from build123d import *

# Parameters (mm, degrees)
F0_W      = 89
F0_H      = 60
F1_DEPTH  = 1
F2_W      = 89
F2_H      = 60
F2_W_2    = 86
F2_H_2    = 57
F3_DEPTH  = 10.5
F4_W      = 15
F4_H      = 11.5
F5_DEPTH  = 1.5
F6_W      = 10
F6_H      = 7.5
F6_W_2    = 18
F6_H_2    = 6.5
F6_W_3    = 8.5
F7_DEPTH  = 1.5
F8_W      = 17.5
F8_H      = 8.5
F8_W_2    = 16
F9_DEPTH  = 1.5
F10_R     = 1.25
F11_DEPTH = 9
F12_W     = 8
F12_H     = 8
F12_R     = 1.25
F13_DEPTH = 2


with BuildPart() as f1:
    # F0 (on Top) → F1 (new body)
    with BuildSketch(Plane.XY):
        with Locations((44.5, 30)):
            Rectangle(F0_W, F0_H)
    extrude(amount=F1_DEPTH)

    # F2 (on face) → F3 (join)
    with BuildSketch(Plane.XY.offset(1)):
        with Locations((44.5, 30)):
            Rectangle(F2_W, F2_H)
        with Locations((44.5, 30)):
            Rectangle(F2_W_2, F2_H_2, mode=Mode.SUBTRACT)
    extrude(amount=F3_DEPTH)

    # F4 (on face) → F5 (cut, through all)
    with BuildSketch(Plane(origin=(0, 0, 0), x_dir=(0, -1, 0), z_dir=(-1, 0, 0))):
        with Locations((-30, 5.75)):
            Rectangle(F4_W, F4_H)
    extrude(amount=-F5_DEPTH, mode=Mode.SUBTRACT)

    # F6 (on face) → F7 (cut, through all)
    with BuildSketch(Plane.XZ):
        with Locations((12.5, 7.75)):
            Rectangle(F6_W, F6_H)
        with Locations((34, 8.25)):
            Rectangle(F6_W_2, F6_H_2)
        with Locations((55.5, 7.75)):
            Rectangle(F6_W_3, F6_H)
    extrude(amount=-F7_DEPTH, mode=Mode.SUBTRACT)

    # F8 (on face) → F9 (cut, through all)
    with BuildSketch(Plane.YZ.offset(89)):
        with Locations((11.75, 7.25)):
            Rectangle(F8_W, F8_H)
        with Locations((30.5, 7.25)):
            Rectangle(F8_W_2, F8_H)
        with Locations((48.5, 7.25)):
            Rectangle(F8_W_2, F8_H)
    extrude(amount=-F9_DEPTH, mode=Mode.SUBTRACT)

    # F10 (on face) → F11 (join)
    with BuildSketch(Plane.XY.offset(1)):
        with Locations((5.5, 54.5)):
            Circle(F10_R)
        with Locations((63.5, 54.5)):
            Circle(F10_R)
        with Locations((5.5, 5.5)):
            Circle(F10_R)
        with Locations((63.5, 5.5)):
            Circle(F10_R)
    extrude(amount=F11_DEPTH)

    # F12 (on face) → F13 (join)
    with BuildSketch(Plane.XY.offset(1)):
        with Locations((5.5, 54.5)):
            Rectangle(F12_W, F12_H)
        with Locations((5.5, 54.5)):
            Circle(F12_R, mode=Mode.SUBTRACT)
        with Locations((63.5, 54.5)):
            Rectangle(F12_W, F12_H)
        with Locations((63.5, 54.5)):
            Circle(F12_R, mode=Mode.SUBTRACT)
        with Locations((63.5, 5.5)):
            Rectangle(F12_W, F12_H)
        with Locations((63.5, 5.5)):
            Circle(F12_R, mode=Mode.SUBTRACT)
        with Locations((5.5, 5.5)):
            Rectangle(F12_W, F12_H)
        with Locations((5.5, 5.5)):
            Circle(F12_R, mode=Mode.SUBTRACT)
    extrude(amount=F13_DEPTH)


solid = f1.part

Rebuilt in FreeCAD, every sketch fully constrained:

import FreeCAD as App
import Part
import Sketcher
Q = App.Units.Quantity

doc = App.newDocument("Part")
body = doc.addObject("PartDesign::Body", "Body")

# Sketch on XY plane
sketch1 = doc.addObject("Sketcher::SketchObject", "Sketch")
body.addObject(sketch1)
sketch1.AttachmentSupport = (doc.XY_Plane, [""])
sketch1.MapMode = "FlatFace"
sketch1.addGeometry([
    Part.LineSegment(App.Vector(0, 60, 0), App.Vector(0, 0, 0)),
    Part.LineSegment(App.Vector(0, 0, 0), App.Vector(89, 0, 0)),
    Part.LineSegment(App.Vector(89, 0, 0), App.Vector(89, 60, 0)),
    Part.LineSegment(App.Vector(89, 60, 0), App.Vector(0, 60, 0)),
], False)
sketch1.addConstraint([
    Sketcher.Constraint("Coincident", 0, 2, 1, 1),
    Sketcher.Constraint("Coincident", 1, 2, 2, 1),
    Sketcher.Constraint("Coincident", 2, 2, 3, 1),
    Sketcher.Constraint("Coincident", 3, 2, 0, 1),
    Sketcher.Constraint("Vertical", 0),
    Sketcher.Constraint("Horizontal", 1),
    Sketcher.Constraint("Vertical", 2),
    Sketcher.Constraint("Horizontal", 3),
    Sketcher.Constraint("Coincident", 0, 2, -1, 1),
    Sketcher.Constraint("DistanceX", 1, 1, 1, 2, Q("89 mm")),
    Sketcher.Constraint("DistanceY", 0, 2, 0, 1, Q("60 mm")),
])
pad1 = doc.addObject("PartDesign::Pad", "Pad")
body.addObject(pad1)
pad1.Profile = sketch1
pad1.Length = 1

# Sketch on XY plane
sketch2 = doc.addObject("Sketcher::SketchObject", "Sketch001")
body.addObject(sketch2)
sketch2.AttachmentSupport = (doc.XY_Plane, [""])
sketch2.MapMode = "FlatFace"
sketch2.AttachmentOffset = App.Placement(App.Vector(0, 0, 1), App.Rotation())
sketch2.addGeometry([
    Part.LineSegment(App.Vector(0, 60, 0), App.Vector(0, 0, 0)),  # 0
    Part.LineSegment(App.Vector(0, 0, 0), App.Vector(89, 0, 0)),  # 1
    Part.LineSegment(App.Vector(89, 0, 0), App.Vector(89, 60, 0)),  # 2
    Part.LineSegment(App.Vector(89, 60, 0), App.Vector(0, 60, 0)),  # 3
    Part.LineSegment(App.Vector(88, 2, 0), App.Vector(2, 2, 0)),  # 4
    Part.LineSegment(App.Vector(2, 2, 0), App.Vector(2, 58, 0)),  # 5
    Part.LineSegment(App.Vector(2, 58, 0), App.Vector(88, 58, 0)),  # 6
    Part.LineSegment(App.Vector(88, 58, 0), App.Vector(88, 2, 0)),  # 7
], False)
sketch2.addConstraint([
    Sketcher.Constraint("Coincident", 0, 2, 1, 1),
    Sketcher.Constraint("Coincident", 1, 2, 2, 1),
    Sketcher.Constraint("Coincident", 2, 2, 3, 1),
    Sketcher.Constraint("Coincident", 3, 2, 0, 1),
    Sketcher.Constraint("Coincident", 4, 2, 5, 1),
    Sketcher.Constraint("Coincident", 5, 2, 6, 1),
    Sketcher.Constraint("Coincident", 6, 2, 7, 1),
    Sketcher.Constraint("Coincident", 7, 2, 4, 1),
    Sketcher.Constraint("Vertical", 0),
    Sketcher.Constraint("Horizontal", 1),
    Sketcher.Constraint("Vertical", 2),
    Sketcher.Constraint("Horizontal", 3),
    Sketcher.Constraint("Horizontal", 4),
    Sketcher.Constraint("Vertical", 5),
    Sketcher.Constraint("Horizontal", 6),
    Sketcher.Constraint("Vertical", 7),
    Sketcher.Constraint("Coincident", 0, 2, -1, 1),
    Sketcher.Constraint("DistanceX", 1, 1, 1, 2, Q("89 mm")),
    Sketcher.Constraint("DistanceX", 4, 2, 4, 1, Q("86 mm")),
    Sketcher.Constraint("DistanceY", 0, 2, 0, 1, Q("60 mm")),
    Sketcher.Constraint("DistanceY", 5, 1, 5, 2, Q("57 mm")),
    Sketcher.Constraint("DistanceX", -1, 1, 4, 2, Q("1.5 mm")),
    Sketcher.Constraint("DistanceY", -1, 1, 4, 2, Q("1.5 mm")),
])
pad2 = doc.addObject("PartDesign::Pad", "Pad001")
body.addObject(pad2)
pad2.Profile = sketch2
pad2.Length = 10.5

# Sketch on YZ plane
sketch3 = doc.addObject("Sketcher::SketchObject", "Sketch002")
body.addObject(sketch3)
sketch3.AttachmentSupport = (doc.YZ_Plane, [""])
sketch3.MapMode = "FlatFace"
sketch3.addGeometry([
    Part.LineSegment(App.Vector(38, 12, 0), App.Vector(38, 0, 0)),
    Part.LineSegment(App.Vector(38, 0, 0), App.Vector(22, 0, 0)),
    Part.LineSegment(App.Vector(22, 0, 0), App.Vector(22, 12, 0)),
    Part.LineSegment(App.Vector(22, 12, 0), App.Vector(38, 12, 0)),
], False)
sketch3.addConstraint([
    Sketcher.Constraint("Coincident", 0, 2, 1, 1),
    Sketcher.Constraint("Coincident", 1, 2, 2, 1),
    Sketcher.Constraint("Coincident", 2, 2, 3, 1),
    Sketcher.Constraint("Coincident", 3, 2, 0, 1),
    Sketcher.Constraint("Vertical", 0),
    Sketcher.Constraint("Horizontal", 1),
    Sketcher.Constraint("Vertical", 2),
    Sketcher.Constraint("Horizontal", 3),
    Sketcher.Constraint("PointOnObject", 0, 2, -1),
    Sketcher.Constraint("DistanceX", 1, 2, 1, 1, Q("15 mm")),
    Sketcher.Constraint("DistanceY", 0, 2, 0, 1, Q("11.5 mm")),
    Sketcher.Constraint("DistanceX", -1, 1, 0, 2, Q("37.5 mm")),
])
pocket1 = doc.addObject("PartDesign::Pocket", "Pocket")
body.addObject(pocket1)
pocket1.Profile = sketch3
pocket1.Length = 1.5
pocket1.Reversed = True

# Sketch on XZ plane
sketch4 = doc.addObject("Sketcher::SketchObject", "Sketch003")
body.addObject(sketch4)
sketch4.AttachmentSupport = (doc.XZ_Plane, [""])
sketch4.MapMode = "FlatFace"
sketch4.addGeometry([
    Part.LineSegment(App.Vector(8, 12, 0), App.Vector(8, 4, 0)),  # 0
    Part.LineSegment(App.Vector(8, 4, 0), App.Vector(18, 4, 0)),  # 1
    Part.LineSegment(App.Vector(18, 4, 0), App.Vector(18, 12, 0)),  # 2
    Part.LineSegment(App.Vector(18, 12, 0), App.Vector(8, 12, 0)),  # 3
    Part.LineSegment(App.Vector(25, 12, 0), App.Vector(25, 5, 0)),  # 4
    Part.LineSegment(App.Vector(25, 5, 0), App.Vector(43, 5, 0)),  # 5
    Part.LineSegment(App.Vector(43, 5, 0), App.Vector(43, 12, 0)),  # 6
    Part.LineSegment(App.Vector(43, 12, 0), App.Vector(25, 12, 0)),  # 7
    Part.LineSegment(App.Vector(51, 12, 0), App.Vector(51, 4, 0)),  # 8
    Part.LineSegment(App.Vector(51, 4, 0), App.Vector(60, 4, 0)),  # 9
    Part.LineSegment(App.Vector(60, 4, 0), App.Vector(60, 12, 0)),  # 10
    Part.LineSegment(App.Vector(60, 12, 0), App.Vector(51, 12, 0)),  # 11
], False)
sketch4.addConstraint([
    Sketcher.Constraint("Coincident", 0, 2, 1, 1),
    Sketcher.Constraint("Coincident", 1, 2, 2, 1),
    Sketcher.Constraint("Coincident", 2, 2, 3, 1),
    Sketcher.Constraint("Coincident", 3, 2, 0, 1),
    Sketcher.Constraint("Coincident", 4, 2, 5, 1),
    Sketcher.Constraint("Coincident", 5, 2, 6, 1),
    Sketcher.Constraint("Coincident", 6, 2, 7, 1),
    Sketcher.Constraint("Coincident", 7, 2, 4, 1),
    Sketcher.Constraint("Coincident", 8, 2, 9, 1),
    Sketcher.Constraint("Coincident", 9, 2, 10, 1),
    Sketcher.Constraint("Coincident", 10, 2, 11, 1),
    Sketcher.Constraint("Coincident", 11, 2, 8, 1),
    Sketcher.Constraint("Vertical", 0),
    Sketcher.Constraint("Horizontal", 1),
    Sketcher.Constraint("Vertical", 2),
    Sketcher.Constraint("Horizontal", 3),
    Sketcher.Constraint("Vertical", 4),
    Sketcher.Constraint("Horizontal", 5),
    Sketcher.Constraint("Vertical", 6),
    Sketcher.Constraint("Horizontal", 7),
    Sketcher.Constraint("Vertical", 8),
    Sketcher.Constraint("Horizontal", 9),
    Sketcher.Constraint("Vertical", 10),
    Sketcher.Constraint("Horizontal", 11),
    Sketcher.Constraint("Horizontal", 3, 2, 6, 2),
    Sketcher.Constraint("Horizontal", 1, 2, 8, 2),
    Sketcher.Constraint("Horizontal", 7, 2, 10, 2),
    Sketcher.Constraint("DistanceX", 1, 1, 1, 2, Q("10 mm")),
    Sketcher.Constraint("DistanceX", 5, 1, 5, 2, Q("18 mm")),
    Sketcher.Constraint("DistanceX", 9, 1, 9, 2, Q("8.5 mm")),
    Sketcher.Constraint("DistanceY", 0, 2, 0, 1, Q("7.5 mm")),
    Sketcher.Constraint("DistanceY", 4, 2, 4, 1, Q("6.5 mm")),
    Sketcher.Constraint("DistanceY", -1, 1, 0, 2, Q("4 mm")),
    Sketcher.Constraint("DistanceX", -1, 1, 4, 2, Q("25 mm")),
    Sketcher.Constraint("DistanceX", -1, 1, 0, 2, Q("7.5 mm")),
    Sketcher.Constraint("DistanceX", -1, 1, 8, 2, Q("51.25 mm")),
])
pocket2 = doc.addObject("PartDesign::Pocket", "Pocket001")
body.addObject(pocket2)
pocket2.Profile = sketch4
pocket2.Length = 1.5

# Sketch on YZ plane
sketch5 = doc.addObject("Sketcher::SketchObject", "Sketch004")
body.addObject(sketch5)
sketch5.AttachmentSupport = (doc.YZ_Plane, [""])
sketch5.MapMode = "FlatFace"
sketch5.AttachmentOffset = App.Placement(App.Vector(0, 0, 89), App.Rotation())
sketch5.addGeometry([
    Part.LineSegment(App.Vector(3, 12, 0), App.Vector(3, 3, 0)),  # 0
    Part.LineSegment(App.Vector(3, 3, 0), App.Vector(20, 3, 0)),  # 1
    Part.LineSegment(App.Vector(20, 3, 0), App.Vector(20, 12, 0)),  # 2
    Part.LineSegment(App.Vector(20, 12, 0), App.Vector(3, 12, 0)),  # 3
    Part.LineSegment(App.Vector(22, 12, 0), App.Vector(22, 3, 0)),  # 4
    Part.LineSegment(App.Vector(22, 3, 0), App.Vector(38, 3, 0)),  # 5
    Part.LineSegment(App.Vector(38, 3, 0), App.Vector(38, 12, 0)),  # 6
    Part.LineSegment(App.Vector(38, 12, 0), App.Vector(22, 12, 0)),  # 7
    Part.LineSegment(App.Vector(40, 12, 0), App.Vector(40, 3, 0)),  # 8
    Part.LineSegment(App.Vector(40, 3, 0), App.Vector(56, 3, 0)),  # 9
    Part.LineSegment(App.Vector(56, 3, 0), App.Vector(56, 12, 0)),  # 10
    Part.LineSegment(App.Vector(56, 12, 0), App.Vector(40, 12, 0)),  # 11
], False)
sketch5.addConstraint([
    Sketcher.Constraint("Coincident", 0, 2, 1, 1),
    Sketcher.Constraint("Coincident", 1, 2, 2, 1),
    Sketcher.Constraint("Coincident", 2, 2, 3, 1),
    Sketcher.Constraint("Coincident", 3, 2, 0, 1),
    Sketcher.Constraint("Coincident", 4, 2, 5, 1),
    Sketcher.Constraint("Coincident", 5, 2, 6, 1),
    Sketcher.Constraint("Coincident", 6, 2, 7, 1),
    Sketcher.Constraint("Coincident", 7, 2, 4, 1),
    Sketcher.Constraint("Coincident", 8, 2, 9, 1),
    Sketcher.Constraint("Coincident", 9, 2, 10, 1),
    Sketcher.Constraint("Coincident", 10, 2, 11, 1),
    Sketcher.Constraint("Coincident", 11, 2, 8, 1),
    Sketcher.Constraint("Vertical", 0),
    Sketcher.Constraint("Horizontal", 1),
    Sketcher.Constraint("Vertical", 2),
    Sketcher.Constraint("Horizontal", 3),
    Sketcher.Constraint("Vertical", 4),
    Sketcher.Constraint("Horizontal", 5),
    Sketcher.Constraint("Vertical", 6),
    Sketcher.Constraint("Horizontal", 7),
    Sketcher.Constraint("Vertical", 8),
    Sketcher.Constraint("Horizontal", 9),
    Sketcher.Constraint("Vertical", 10),
    Sketcher.Constraint("Horizontal", 11),
    Sketcher.Constraint("Horizontal", 1, 2, 4, 2),
    Sketcher.Constraint("Horizontal", 3, 2, 6, 2),
    Sketcher.Constraint("Horizontal", 5, 2, 8, 2),
    Sketcher.Constraint("Horizontal", 7, 2, 10, 2),
    Sketcher.Constraint("Equal", 7, 9),
    Sketcher.Constraint("DistanceX", 5, 1, 5, 2, Q("16 mm")),
    Sketcher.Constraint("DistanceX", 1, 1, 1, 2, Q("17.5 mm")),
    Sketcher.Constraint("DistanceY", 0, 2, 0, 1, Q("8.5 mm")),
    Sketcher.Constraint("DistanceX", -1, 1, 0, 2, Q("3 mm")),
    Sketcher.Constraint("DistanceY", -1, 1, 0, 2, Q("3 mm")),
    Sketcher.Constraint("DistanceX", 1, 2, 4, 2, Q("2 mm")),
    Sketcher.Constraint("DistanceX", 5, 2, 8, 2, Q("2 mm")),
])
pocket3 = doc.addObject("PartDesign::Pocket", "Pocket002")
body.addObject(pocket3)
pocket3.Profile = sketch5
pocket3.Length = 1.5

# Sketch on XY plane
sketch6 = doc.addObject("Sketcher::SketchObject", "Sketch005")
body.addObject(sketch6)
sketch6.AttachmentSupport = (doc.XY_Plane, [""])
sketch6.MapMode = "FlatFace"
sketch6.AttachmentOffset = App.Placement(App.Vector(0, 0, 1), App.Rotation())
sketch6.addGeometry([
    Part.Circle(App.Vector(5.5, 54.5, 0), App.Vector(0, 0, 1), 1.2),
    Part.Circle(App.Vector(63.5, 54.5, 0), App.Vector(0, 0, 1), 1.2),
    Part.Circle(App.Vector(5.5, 5.5, 0), App.Vector(0, 0, 1), 1.2),
    Part.Circle(App.Vector(63.5, 5.5, 0), App.Vector(0, 0, 1), 1.2),
], False)
sketch6.addConstraint([
    Sketcher.Constraint("Equal", 0, 1),
    Sketcher.Constraint("Equal", 1, 2),
    Sketcher.Constraint("Equal", 2, 3),
    Sketcher.Constraint("Horizontal", 0, 3, 1, 3),
    Sketcher.Constraint("Horizontal", 2, 3, 3, 3),
    Sketcher.Constraint("Vertical", 0, 3, 2, 3),
    Sketcher.Constraint("Vertical", 1, 3, 3, 3),
    Sketcher.Constraint("Diameter", 0, Q("2.5 mm")),
    Sketcher.Constraint("DistanceX", 0, 3, 1, 3, Q("58 mm")),
    Sketcher.Constraint("DistanceY", 2, 3, 0, 3, Q("49 mm")),
    Sketcher.Constraint("DistanceX", -1, 1, 0, 3, Q("5.5 mm")),
    Sketcher.Constraint("DistanceY", -1, 1, 0, 3, Q("54.5 mm")),
])
pad3 = doc.addObject("PartDesign::Pad", "Pad002")
body.addObject(pad3)
pad3.Profile = sketch6
pad3.Length = 9

# Sketch on XY plane
sketch7 = doc.addObject("Sketcher::SketchObject", "Sketch006")
body.addObject(sketch7)
sketch7.AttachmentSupport = (doc.XY_Plane, [""])
sketch7.MapMode = "FlatFace"
sketch7.AttachmentOffset = App.Placement(App.Vector(0, 0, 1), App.Rotation())
sketch7.addGeometry([
    Part.LineSegment(App.Vector(1.5, 58.5, 0), App.Vector(1.5, 50.5, 0)),  # 0
    Part.LineSegment(App.Vector(1.5, 50.5, 0), App.Vector(9.5, 50.5, 0)),  # 1
    Part.LineSegment(App.Vector(9.5, 50.5, 0), App.Vector(9.5, 58.5, 0)),  # 2
    Part.LineSegment(App.Vector(9.5, 58.5, 0), App.Vector(1.5, 58.5, 0)),  # 3
    Part.Circle(App.Vector(5.5, 54.5, 0), App.Vector(0, 0, 1), 1.2),  # 4
    Part.LineSegment(App.Vector(59.5, 58.5, 0), App.Vector(59.5, 50.5, 0)),  # 5
    Part.LineSegment(App.Vector(59.5, 50.5, 0), App.Vector(67.5, 50.5, 0)),  # 6
    Part.LineSegment(App.Vector(67.5, 50.5, 0), App.Vector(67.5, 58.5, 0)),  # 7
    Part.LineSegment(App.Vector(67.5, 58.5, 0), App.Vector(59.5, 58.5, 0)),  # 8
    Part.Circle(App.Vector(63.5, 54.5, 0), App.Vector(0, 0, 1), 1.2),  # 9
    Part.LineSegment(App.Vector(59.5, 9.5, 0), App.Vector(59.5, 1.5, 0)),  # 10
    Part.LineSegment(App.Vector(59.5, 1.5, 0), App.Vector(67.5, 1.5, 0)),  # 11
    Part.LineSegment(App.Vector(67.5, 1.5, 0), App.Vector(67.5, 9.5, 0)),  # 12
    Part.LineSegment(App.Vector(67.5, 9.5, 0), App.Vector(59.5, 9.5, 0)),  # 13
    Part.Circle(App.Vector(63.5, 5.5, 0), App.Vector(0, 0, 1), 1.2),  # 14
    Part.LineSegment(App.Vector(1.5, 9.5, 0), App.Vector(1.5, 1.5, 0)),  # 15
    Part.LineSegment(App.Vector(1.5, 1.5, 0), App.Vector(9.5, 1.5, 0)),  # 16
    Part.LineSegment(App.Vector(9.5, 1.5, 0), App.Vector(9.5, 9.5, 0)),  # 17
    Part.LineSegment(App.Vector(9.5, 9.5, 0), App.Vector(1.5, 9.5, 0)),  # 18
    Part.Circle(App.Vector(5.5, 5.5, 0), App.Vector(0, 0, 1), 1.2),  # 19
], False)
sketch7.addConstraint([
    Sketcher.Constraint("Coincident", 0, 2, 1, 1),
    Sketcher.Constraint("Coincident", 1, 2, 2, 1),
    Sketcher.Constraint("Coincident", 2, 2, 3, 1),
    Sketcher.Constraint("Coincident", 3, 2, 0, 1),
    Sketcher.Constraint("Coincident", 5, 2, 6, 1),
    Sketcher.Constraint("Coincident", 6, 2, 7, 1),
    Sketcher.Constraint("Coincident", 7, 2, 8, 1),
    Sketcher.Constraint("Coincident", 8, 2, 5, 1),
    Sketcher.Constraint("Coincident", 10, 2, 11, 1),
    Sketcher.Constraint("Coincident", 11, 2, 12, 1),
    Sketcher.Constraint("Coincident", 12, 2, 13, 1),
    Sketcher.Constraint("Coincident", 13, 2, 10, 1),
    Sketcher.Constraint("Coincident", 15, 2, 16, 1),
    Sketcher.Constraint("Coincident", 16, 2, 17, 1),
    Sketcher.Constraint("Coincident", 17, 2, 18, 1),
    Sketcher.Constraint("Coincident", 18, 2, 15, 1),
    Sketcher.Constraint("Vertical", 0),
    Sketcher.Constraint("Horizontal", 1),
    Sketcher.Constraint("Vertical", 2),
    Sketcher.Constraint("Horizontal", 3),
    Sketcher.Constraint("Vertical", 5),
    Sketcher.Constraint("Horizontal", 6),
    Sketcher.Constraint("Vertical", 7),
    Sketcher.Constraint("Horizontal", 8),
    Sketcher.Constraint("Vertical", 10),
    Sketcher.Constraint("Horizontal", 11),
    Sketcher.Constraint("Vertical", 12),
    Sketcher.Constraint("Horizontal", 13),
    Sketcher.Constraint("Vertical", 15),
    Sketcher.Constraint("Horizontal", 16),
    Sketcher.Constraint("Vertical", 17),
    Sketcher.Constraint("Horizontal", 18),
    Sketcher.Constraint("Equal", 4, 9),
    Sketcher.Constraint("Equal", 9, 14),
    Sketcher.Constraint("Equal", 14, 19),
    Sketcher.Constraint("Horizontal", 4, 3, 9, 3),
    Sketcher.Constraint("Horizontal", 14, 3, 19, 3),
    Sketcher.Constraint("Horizontal", 1, 2, 5, 2),
    Sketcher.Constraint("Horizontal", 3, 2, 7, 2),
    Sketcher.Constraint("Horizontal", 11, 2, 15, 2),
    Sketcher.Constraint("Horizontal", 13, 2, 17, 2),
    Sketcher.Constraint("Vertical", 9, 3, 14, 3),
    Sketcher.Constraint("Vertical", 4, 3, 19, 3),
    Sketcher.Constraint("Vertical", 8, 2, 10, 2),
    Sketcher.Constraint("Vertical", 7, 2, 11, 2),
    Sketcher.Constraint("Vertical", 3, 2, 15, 2),
    Sketcher.Constraint("Vertical", 2, 2, 16, 2),
    Sketcher.Constraint("Equal", 3, 6),
    Sketcher.Constraint("Equal", 18, 0),
    Sketcher.Constraint("Equal", 7, 10),
    Sketcher.Constraint("Diameter", 4, Q("2.5 mm")),
    Sketcher.Constraint("DistanceX", 1, 1, 1, 2, Q("8 mm")),
    Sketcher.Constraint("DistanceX", 4, 3, 9, 3, Q("58 mm")),
    Sketcher.Constraint("DistanceY", 14, 3, 9, 3, Q("49 mm")),
    Sketcher.Constraint("DistanceX", 0, 2, 4, 3, Q("4 mm")),
    Sketcher.Constraint("DistanceY", 0, 2, 4, 3, Q("4 mm")),
    Sketcher.Constraint("DistanceX", 5, 2, 9, 3, Q("4 mm")),
    Sketcher.Constraint("DistanceY", 10, 2, 14, 3, Q("4 mm")),
    Sketcher.Constraint("DistanceX", -1, 1, 4, 3, Q("5.5 mm")),
    Sketcher.Constraint("DistanceY", -1, 1, 4, 3, Q("54.5 mm")),
])
pad4 = doc.addObject("PartDesign::Pad", "Pad003")
body.addObject(pad4)
pad4.Profile = sketch7
pad4.Length = 2

doc.recompute()
